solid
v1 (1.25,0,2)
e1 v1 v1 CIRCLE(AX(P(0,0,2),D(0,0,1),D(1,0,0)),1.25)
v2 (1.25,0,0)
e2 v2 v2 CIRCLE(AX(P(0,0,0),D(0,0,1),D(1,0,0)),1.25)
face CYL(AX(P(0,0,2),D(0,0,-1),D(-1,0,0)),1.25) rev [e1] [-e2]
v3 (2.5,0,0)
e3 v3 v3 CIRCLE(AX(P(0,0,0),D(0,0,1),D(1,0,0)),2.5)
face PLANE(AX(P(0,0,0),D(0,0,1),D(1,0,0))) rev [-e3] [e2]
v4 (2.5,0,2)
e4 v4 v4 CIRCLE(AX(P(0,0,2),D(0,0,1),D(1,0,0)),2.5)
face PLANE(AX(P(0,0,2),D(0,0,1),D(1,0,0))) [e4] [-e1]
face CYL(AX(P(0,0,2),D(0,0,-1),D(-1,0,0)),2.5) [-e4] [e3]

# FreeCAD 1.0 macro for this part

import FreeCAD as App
import Part
import Sketcher

doc = App.newDocument("Part")
body = doc.addObject("PartDesign::Body", "Body")

# Sketch on XY plane
sketch1 = doc.addObject("Sketcher::SketchObject", "Sketch")
body.addObject(sketch1)
sketch1.AttachmentSupport = (doc.XY_Plane, [""])
sketch1.MapMode = "FlatFace"
sketch1.addGeometry([
    Part.Circle(App.Vector(0, 0, 0), App.Vector(0, 0, 1), 2.5),
    Part.Circle(App.Vector(0, 0, 0), App.Vector(0, 0, 1), 1.2),
], False)
sketch1.addConstraint([
    Sketcher.Constraint("Coincident", 0, 3, -1, 1),
    Sketcher.Constraint("Coincident", 1, 3, -1, 1),
    Sketcher.Constraint("Diameter", 0, 5.0),
    Sketcher.Constraint("Diameter", 1, 2.5),
])
pad1 = doc.addObject("PartDesign::Pad", "Pad")
body.addObject(pad1)
pad1.Profile = sketch1
pad1.Length = 2

doc.recompute()
